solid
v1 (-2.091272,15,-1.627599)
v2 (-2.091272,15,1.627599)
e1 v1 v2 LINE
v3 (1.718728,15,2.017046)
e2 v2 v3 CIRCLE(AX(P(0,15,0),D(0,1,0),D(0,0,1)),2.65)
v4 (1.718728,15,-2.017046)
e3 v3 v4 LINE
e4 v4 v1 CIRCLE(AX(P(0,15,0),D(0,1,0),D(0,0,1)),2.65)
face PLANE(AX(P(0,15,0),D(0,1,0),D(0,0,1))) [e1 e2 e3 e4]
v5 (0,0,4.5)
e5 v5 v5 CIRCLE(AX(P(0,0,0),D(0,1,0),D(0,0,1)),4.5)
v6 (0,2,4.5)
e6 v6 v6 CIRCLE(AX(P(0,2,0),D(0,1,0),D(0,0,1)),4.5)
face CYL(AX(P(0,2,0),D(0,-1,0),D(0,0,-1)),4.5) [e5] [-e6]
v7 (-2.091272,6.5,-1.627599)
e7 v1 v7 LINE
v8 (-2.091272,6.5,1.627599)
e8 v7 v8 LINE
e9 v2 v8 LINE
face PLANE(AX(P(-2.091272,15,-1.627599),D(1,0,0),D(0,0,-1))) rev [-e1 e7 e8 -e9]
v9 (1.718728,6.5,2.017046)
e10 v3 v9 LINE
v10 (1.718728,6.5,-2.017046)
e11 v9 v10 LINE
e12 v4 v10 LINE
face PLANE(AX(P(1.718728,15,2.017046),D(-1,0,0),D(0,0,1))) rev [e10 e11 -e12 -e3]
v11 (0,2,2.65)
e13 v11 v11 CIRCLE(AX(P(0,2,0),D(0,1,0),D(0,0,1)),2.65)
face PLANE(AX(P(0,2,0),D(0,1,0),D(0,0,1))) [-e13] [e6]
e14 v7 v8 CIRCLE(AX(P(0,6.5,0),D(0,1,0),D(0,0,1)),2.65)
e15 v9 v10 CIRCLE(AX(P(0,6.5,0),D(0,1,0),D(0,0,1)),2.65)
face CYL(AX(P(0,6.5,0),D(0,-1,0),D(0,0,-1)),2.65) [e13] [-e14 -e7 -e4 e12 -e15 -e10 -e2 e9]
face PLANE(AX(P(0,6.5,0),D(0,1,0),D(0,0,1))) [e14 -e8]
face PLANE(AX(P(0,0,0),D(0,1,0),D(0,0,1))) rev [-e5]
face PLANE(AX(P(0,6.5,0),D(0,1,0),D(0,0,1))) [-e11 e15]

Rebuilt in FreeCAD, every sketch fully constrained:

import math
import FreeCAD as App
import Part
import Sketcher
from FreeCAD import Vector
Q = App.Units.Quantity

doc = App.newDocument("Part")
params = doc.addObject("Spreadsheet::Sheet", "Params")
for row, (alias, value) in enumerate([
    ("sketch1_diameter", "9 mm"),
    ("pad1_length", "2 mm"),
    ("sketch2_diameter", "5.3 mm"),
    ("pad2_length", "4.5 mm"),
    ("sketch3_radius", "2.65 mm"),
    ("pad3_length", "8.5 mm"),
], start=1):
    params.set(f"A{row}", alias)
    params.set(f"B{row}", "=" + value)
    params.setAlias(f"B{row}", alias)

body = doc.addObject("PartDesign::Body", "Body")

sketch1 = body.newObject("Sketcher::SketchObject", "Sketch")
sketch1.AttachmentSupport = (doc.getObject("XZ_Plane"), [""])
sketch1.MapMode = "FlatFace"
sketch1.addGeometry(Part.Circle(Vector(0, 0, 0), Vector(0, 0, 1), 4.5), False)
sketch1.addConstraint(Sketcher.Constraint("Coincident", 0, 3, -1, 1))
sketch1.addConstraint(Sketcher.Constraint("Diameter", 0, Q("9 mm")))
sketch1.setExpression("Constraints[1]", "Params.sketch1_diameter")
pad1 = body.newObject("PartDesign::Pad", "Pad")
pad1.Profile = sketch1
pad1.setExpression("Length", "Params.pad1_length")
pad1.Reversed = True

sketch2 = body.newObject("Sketcher::SketchObject", "Sketch001")
sketch2.AttachmentSupport = (doc.getObject("XZ_Plane"), [""])
sketch2.MapMode = "FlatFace"
sketch2.AttachmentOffset = App.Placement(Vector(0, 0, -2), App.Rotation())
sketch2.addGeometry(Part.Circle(Vector(0, 0, 0), Vector(0, 0, 1), 2.65), False)
sketch2.addConstraint(Sketcher.Constraint("Coincident", 0, 3, -1, 1))
sketch2.addConstraint(Sketcher.Constraint("Diameter", 0, Q("5.3 mm")))
sketch2.setExpression("Constraints[1]", "Params.sketch2_diameter")
pad2 = body.newObject("PartDesign::Pad", "Pad001")
pad2.Profile = sketch2
pad2.setExpression("Length", "Params.pad2_length")
pad2.Reversed = True

sketch3 = body.newObject("Sketcher::SketchObject", "Sketch002")
sketch3.AttachmentSupport = (doc.getObject("XZ_Plane"), [""])
sketch3.MapMode = "FlatFace"
sketch3.AttachmentOffset = App.Placement(Vector(0, 0, -6.5), App.Rotation())
sketch3.addGeometry(Part.LineSegment(Vector(1.718728, 2.017046, 0), Vector(1.718728, -2.017046, 0)), False)
sketch3.addGeometry(Part.ArcOfCircle(Part.Circle(Vector(0, 0, 0), Vector(0, 0, 1), 2.65), math.radians(-142.107022), math.radians(-49.565639)), False)
sketch3.addGeometry(Part.LineSegment(Vector(-2.091272, -1.627599, 0), Vector(-2.091272, 1.627599, 0)), False)
sketch3.addGeometry(Part.ArcOfCircle(Part.Circle(Vector(0, 0, 0), Vector(0, 0, 1), 2.65), math.radians(49.565639), math.radians(142.107022)), False)
sketch3.addConstraint(Sketcher.Constraint("Coincident", 0, 2, 1, 2))
sketch3.addConstraint(Sketcher.Constraint("Coincident", 1, 1, 2, 1))
sketch3.addConstraint(Sketcher.Constraint("Coincident", 2, 2, 3, 2))
sketch3.addConstraint(Sketcher.Constraint("Coincident", 3, 1, 0, 1))
sketch3.addConstraint(Sketcher.Constraint("Vertical", 0))
sketch3.addConstraint(Sketcher.Constraint("Vertical", 2))
sketch3.addConstraint(Sketcher.Constraint("Coincident", 1, 3, -1, 1))
sketch3.addConstraint(Sketcher.Constraint("Coincident", 3, 3, -1, 1))
sketch3.addConstraint(Sketcher.Constraint("Equal", 1, 3))
sketch3.addConstraint(Sketcher.Constraint("Radius", 1, Q("2.65 mm")))
sketch3.addConstraint(Sketcher.Constraint("DistanceX", 1, 1, 0, 2, Q("3.81 mm")))
sketch3.addConstraint(Sketcher.Constraint("DistanceY", 2, 1, 2, 2, Q("3.255199 mm")))
sketch3.setExpression("Constraints[9]", "Params.sketch3_radius")
pad3 = body.newObject("PartDesign::Pad", "Pad002")
pad3.Profile = sketch3
pad3.setExpression("Length", "Params.pad3_length")
pad3.Reversed = True

doc.recompute()
